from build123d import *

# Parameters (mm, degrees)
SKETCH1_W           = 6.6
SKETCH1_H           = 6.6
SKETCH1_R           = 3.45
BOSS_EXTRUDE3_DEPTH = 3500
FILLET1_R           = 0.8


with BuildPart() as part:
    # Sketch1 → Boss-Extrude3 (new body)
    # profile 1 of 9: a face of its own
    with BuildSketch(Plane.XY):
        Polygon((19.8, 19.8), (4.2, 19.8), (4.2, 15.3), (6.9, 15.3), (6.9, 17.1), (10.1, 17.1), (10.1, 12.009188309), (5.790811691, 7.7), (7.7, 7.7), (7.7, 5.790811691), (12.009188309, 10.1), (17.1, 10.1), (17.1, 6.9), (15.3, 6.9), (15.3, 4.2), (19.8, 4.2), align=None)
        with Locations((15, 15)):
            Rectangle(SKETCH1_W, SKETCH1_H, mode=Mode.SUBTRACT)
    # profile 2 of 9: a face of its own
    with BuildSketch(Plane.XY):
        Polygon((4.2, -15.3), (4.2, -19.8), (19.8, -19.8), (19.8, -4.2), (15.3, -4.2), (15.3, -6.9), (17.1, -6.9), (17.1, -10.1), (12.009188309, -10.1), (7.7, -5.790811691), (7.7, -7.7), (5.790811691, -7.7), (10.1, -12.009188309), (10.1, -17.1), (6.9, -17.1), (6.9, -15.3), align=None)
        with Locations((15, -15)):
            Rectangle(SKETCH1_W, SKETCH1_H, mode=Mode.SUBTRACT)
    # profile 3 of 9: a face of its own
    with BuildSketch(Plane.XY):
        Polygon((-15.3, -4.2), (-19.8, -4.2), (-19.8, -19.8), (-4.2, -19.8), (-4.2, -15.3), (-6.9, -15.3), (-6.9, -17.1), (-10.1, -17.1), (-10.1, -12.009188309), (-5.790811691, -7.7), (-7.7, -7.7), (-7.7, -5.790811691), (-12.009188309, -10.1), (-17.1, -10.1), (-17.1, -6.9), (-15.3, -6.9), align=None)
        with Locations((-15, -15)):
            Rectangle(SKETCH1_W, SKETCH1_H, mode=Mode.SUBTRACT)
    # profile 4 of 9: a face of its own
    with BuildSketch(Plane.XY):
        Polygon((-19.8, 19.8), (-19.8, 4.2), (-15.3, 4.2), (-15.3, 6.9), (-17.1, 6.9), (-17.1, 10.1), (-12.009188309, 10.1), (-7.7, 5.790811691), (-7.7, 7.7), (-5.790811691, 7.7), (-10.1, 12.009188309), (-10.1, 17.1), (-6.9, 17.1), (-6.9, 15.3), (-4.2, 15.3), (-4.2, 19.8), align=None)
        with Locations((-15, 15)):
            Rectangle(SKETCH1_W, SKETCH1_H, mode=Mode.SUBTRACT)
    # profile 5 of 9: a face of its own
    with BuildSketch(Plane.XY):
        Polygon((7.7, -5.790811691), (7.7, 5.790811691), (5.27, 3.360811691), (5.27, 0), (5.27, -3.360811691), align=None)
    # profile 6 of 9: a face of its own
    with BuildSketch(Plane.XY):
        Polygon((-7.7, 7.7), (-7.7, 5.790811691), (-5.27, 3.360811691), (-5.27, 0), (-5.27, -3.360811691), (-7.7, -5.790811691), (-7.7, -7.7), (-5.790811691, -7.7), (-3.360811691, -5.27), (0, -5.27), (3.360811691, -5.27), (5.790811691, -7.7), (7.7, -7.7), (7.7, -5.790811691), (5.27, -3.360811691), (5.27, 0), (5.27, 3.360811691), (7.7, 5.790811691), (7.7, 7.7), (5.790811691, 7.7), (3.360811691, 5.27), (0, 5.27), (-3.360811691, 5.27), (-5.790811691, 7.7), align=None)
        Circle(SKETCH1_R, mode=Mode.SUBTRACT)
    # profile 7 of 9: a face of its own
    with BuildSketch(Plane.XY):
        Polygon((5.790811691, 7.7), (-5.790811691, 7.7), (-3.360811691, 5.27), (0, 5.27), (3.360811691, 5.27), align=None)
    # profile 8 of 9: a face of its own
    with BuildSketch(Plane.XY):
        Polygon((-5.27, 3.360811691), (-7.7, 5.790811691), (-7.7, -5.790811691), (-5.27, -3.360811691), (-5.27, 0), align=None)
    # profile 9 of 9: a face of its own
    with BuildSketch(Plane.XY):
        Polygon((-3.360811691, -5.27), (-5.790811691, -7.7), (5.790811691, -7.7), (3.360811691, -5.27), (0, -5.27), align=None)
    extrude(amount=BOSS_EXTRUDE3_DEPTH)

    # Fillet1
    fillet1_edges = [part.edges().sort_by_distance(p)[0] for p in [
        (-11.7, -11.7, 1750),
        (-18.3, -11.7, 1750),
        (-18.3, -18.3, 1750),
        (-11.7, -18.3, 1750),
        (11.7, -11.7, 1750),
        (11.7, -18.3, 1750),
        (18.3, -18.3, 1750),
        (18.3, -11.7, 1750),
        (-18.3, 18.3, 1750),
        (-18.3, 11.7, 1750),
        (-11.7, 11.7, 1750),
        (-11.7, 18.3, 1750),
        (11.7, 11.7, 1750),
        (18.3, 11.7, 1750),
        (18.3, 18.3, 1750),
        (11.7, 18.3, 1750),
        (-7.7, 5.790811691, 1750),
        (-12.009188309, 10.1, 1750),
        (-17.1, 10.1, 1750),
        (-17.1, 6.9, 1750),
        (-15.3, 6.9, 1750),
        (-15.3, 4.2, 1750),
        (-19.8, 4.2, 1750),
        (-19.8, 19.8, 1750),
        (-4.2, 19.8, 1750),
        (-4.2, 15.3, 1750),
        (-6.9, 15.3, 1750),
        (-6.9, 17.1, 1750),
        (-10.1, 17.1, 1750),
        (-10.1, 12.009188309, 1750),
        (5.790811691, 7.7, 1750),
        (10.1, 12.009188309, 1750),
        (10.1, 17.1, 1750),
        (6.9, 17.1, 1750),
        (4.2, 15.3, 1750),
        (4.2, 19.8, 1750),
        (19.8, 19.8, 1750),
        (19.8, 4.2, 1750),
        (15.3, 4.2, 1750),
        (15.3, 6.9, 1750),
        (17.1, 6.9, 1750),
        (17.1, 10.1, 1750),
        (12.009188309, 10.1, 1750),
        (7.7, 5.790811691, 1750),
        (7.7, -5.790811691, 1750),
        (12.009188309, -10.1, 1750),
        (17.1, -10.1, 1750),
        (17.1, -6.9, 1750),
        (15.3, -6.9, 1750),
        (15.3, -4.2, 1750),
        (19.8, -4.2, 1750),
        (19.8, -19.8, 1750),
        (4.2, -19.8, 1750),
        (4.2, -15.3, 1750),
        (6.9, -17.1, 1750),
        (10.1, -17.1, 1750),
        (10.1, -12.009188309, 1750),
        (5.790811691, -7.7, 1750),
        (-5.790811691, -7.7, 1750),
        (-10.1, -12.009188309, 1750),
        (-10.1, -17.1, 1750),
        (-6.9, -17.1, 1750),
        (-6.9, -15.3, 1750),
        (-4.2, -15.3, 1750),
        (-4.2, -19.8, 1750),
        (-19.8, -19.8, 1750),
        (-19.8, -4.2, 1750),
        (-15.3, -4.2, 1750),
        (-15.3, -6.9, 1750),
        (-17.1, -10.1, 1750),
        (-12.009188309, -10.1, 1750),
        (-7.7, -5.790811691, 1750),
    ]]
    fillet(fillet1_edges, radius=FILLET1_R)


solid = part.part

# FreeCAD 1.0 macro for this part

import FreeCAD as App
import Part
import Sketcher
from FreeCAD import Vector
Q = App.Units.Quantity


def edges_at(feature, points):
    """Names of the edges that pass closest to the given points."""
    edges = feature.Shape.Edges
    near = lambda p: min(range(len(edges)), key=lambda i: edges[i].distToShape(Part.Vertex(*p))[0])
    return sorted({f"Edge{near(p) + 1}" for p in points})


def add_polygon(sketch, points):
    """Adds a closed chain of lines whose ends are joined by coincident constraints."""
    first, n = sketch.GeometryCount, len(points)
    for a, b in zip(points, points[1:] + points[:1]):
        sketch.addGeometry(Part.LineSegment(App.Vector(*a, 0), App.Vector(*b, 0)), False)
    for i in range(n):
        sketch.addConstraint(Sketcher.Constraint("Coincident", first + i, 2, first + (i + 1) % n, 1))

doc = App.newDocument("Part")
body = doc.addObject("PartDesign::Body", "Body")

sketch1 = doc.addObject("Sketcher::SketchObject", "Sketch")
body.addObject(sketch1)
sketch1.AttachmentSupport = (doc.XY_Plane, [""])
sketch1.MapMode = "FlatFace"
add_polygon(sketch1, [(19.8, 19.8), (4.2, 19.8), (4.2, 15.3), (6.9, 15.3), (6.9, 17.1), (10.1, 17.1), (10.1, 12.009188), (5.790812, 7.7), (-5.790812, 7.7), (-10.1, 12.009188), (-10.1, 17.1), (-6.9, 17.1), (-6.9, 15.3), (-4.2, 15.3), (-4.2, 19.8), (-19.8, 19.8), (-19.8, 4.2), (-15.3, 4.2), (-15.3, 6.9), (-17.1, 6.9), (-17.1, 10.1), (-12.009188, 10.1), (-7.7, 5.790812), (-7.7, -5.790812), (-12.009188, -10.1), (-17.1, -10.1), (-17.1, -6.9), (-15.3, -6.9), (-15.3, -4.2), (-19.8, -4.2), (-19.8, -19.8), (-4.2, -19.8), (-4.2, -15.3), (-6.9, -15.3), (-6.9, -17.1), (-10.1, -17.1), (-10.1, -12.009188), (-5.790812, -7.7), (5.790812, -7.7), (10.1, -12.009188), (10.1, -17.1), (6.9, -17.1), (6.9, -15.3), (4.2, -15.3), (4.2, -19.8), (19.8, -19.8), (19.8, -4.2), (15.3, -4.2), (15.3, -6.9), (17.1, -6.9), (17.1, -10.1), (12.009188, -10.1), (7.7, -5.790812), (7.7, 5.790812), (12.009188, 10.1), (17.1, 10.1), (17.1, 6.9), (15.3, 6.9), (15.3, 4.2), (19.8, 4.2)])
add_polygon(sketch1, [(18.3, 11.7), (11.7, 11.7), (11.7, 18.3), (18.3, 18.3)])
sketch1.addGeometry(Part.Circle(Vector(0, 0, 0), Vector(0, 0, 1), 3.45), False)
add_polygon(sketch1, [(-18.3, 11.7), (-18.3, 18.3), (-11.7, 18.3), (-11.7, 11.7)])
add_polygon(sketch1, [(-18.3, -18.3), (-18.3, -11.7), (-11.7, -11.7), (-11.7, -18.3)])
add_polygon(sketch1, [(11.7, -11.7), (18.3, -11.7), (18.3, -18.3), (11.7, -18.3)])
sketch1.addConstraint([
    Sketcher.Constraint("Horizontal", 0),
    Sketcher.Constraint("Vertical", 1),
    Sketcher.Constraint("Horizontal", 2),
    Sketcher.Constraint("Vertical", 3),
    Sketcher.Constraint("Horizontal", 4),
    Sketcher.Constraint("Vertical", 5),
    Sketcher.Constraint("Horizontal", 7),
    Sketcher.Constraint("Vertical", 9),
    Sketcher.Constraint("Horizontal", 10),
    Sketcher.Constraint("Vertical", 11),
    Sketcher.Constraint("Horizontal", 12),
    Sketcher.Constraint("Vertical", 13),
    Sketcher.Constraint("Horizontal", 14),
    Sketcher.Constraint("Vertical", 15),
    Sketcher.Constraint("Horizontal", 16),
    Sketcher.Constraint("Vertical", 17),
    Sketcher.Constraint("Horizontal", 18),
    Sketcher.Constraint("Vertical", 19),
    Sketcher.Constraint("Horizontal", 20),
    Sketcher.Constraint("Vertical", 22),
    Sketcher.Constraint("Horizontal", 24),
    Sketcher.Constraint("Vertical", 25),
    Sketcher.Constraint("Horizontal", 26),
    Sketcher.Constraint("Vertical", 27),
    Sketcher.Constraint("Horizontal", 28),
    Sketcher.Constraint("Vertical", 29),
    Sketcher.Constraint("Horizontal", 30),
    Sketcher.Constraint("Vertical", 31),
    Sketcher.Constraint("Horizontal", 32),
    Sketcher.Constraint("Vertical", 33),
    Sketcher.Constraint("Horizontal", 34),
    Sketcher.Constraint("Vertical", 35),
    Sketcher.Constraint("Horizontal", 37),
    Sketcher.Constraint("Vertical", 39),
    Sketcher.Constraint("Horizontal", 40),
    Sketcher.Constraint("Vertical", 41),
    Sketcher.Constraint("Horizontal", 42),
    Sketcher.Constraint("Vertical", 43),
    Sketcher.Constraint("Horizontal", 44),
    Sketcher.Constraint("Vertical", 45),
    Sketcher.Constraint("Horizontal", 46),
    Sketcher.Constraint("Vertical", 47),
    Sketcher.Constraint("Horizontal", 48),
    Sketcher.Constraint("Vertical", 49),
    Sketcher.Constraint("Horizontal", 50),
    Sketcher.Constraint("Vertical", 52),
    Sketcher.Constraint("Horizontal", 54),
    Sketcher.Constraint("Vertical", 55),
    Sketcher.Constraint("Horizontal", 56),
    Sketcher.Constraint("Vertical", 57),
    Sketcher.Constraint("Horizontal", 58),
    Sketcher.Constraint("Vertical", 59),
    Sketcher.Constraint("Horizontal", 60),
    Sketcher.Constraint("Vertical", 61),
    Sketcher.Constraint("Horizontal", 62),
    Sketcher.Constraint("Vertical", 63),
    Sketcher.Constraint("Vertical", 65),
    Sketcher.Constraint("Horizontal", 66),
    Sketcher.Constraint("Vertical", 67),
    Sketcher.Constraint("Horizontal", 68),
    Sketcher.Constraint("Vertical", 69),
    Sketcher.Constraint("Horizontal", 70),
    Sketcher.Constraint("Vertical", 71),
    Sketcher.Constraint("Horizontal", 72),
    Sketcher.Constraint("Horizontal", 73),
    Sketcher.Constraint("Vertical", 74),
    Sketcher.Constraint("Horizontal", 75),
    Sketcher.Constraint("Vertical", 76),
    Sketcher.Constraint("Coincident", 64, 3, -1, 1),
    Sketcher.Constraint("Symmetric", 0, 2, 30, 2, -1, 1),
    Sketcher.Constraint("Symmetric", 2, 2, 32, 2, -1, 1),
    Sketcher.Constraint("Symmetric", 4, 2, 34, 2, -1, 1),
    Sketcher.Constraint("Symmetric", 6, 2, 36, 2, -1, 1),
    Sketcher.Constraint("Symmetric", 8, 2, 38, 2, -1, 1),
    Sketcher.Constraint("Symmetric", 10, 2, 40, 2, -1, 1),
    Sketcher.Constraint("Symmetric", 12, 2, 42, 2, -1, 1),
    Sketcher.Constraint("Symmetric", 14, 2, 44, 2, -1, 1),
    Sketcher.Constraint("Symmetric", 16, 2, 46, 2, -1, 1),
    Sketcher.Constraint("Symmetric", 18, 2, 48, 2, -1, 1),
    Sketcher.Constraint("Symmetric", 20, 2, 50, 2, -1, 1),
    Sketcher.Constraint("Symmetric", 21, 2, 51, 2, -1, 1),
    Sketcher.Constraint("Symmetric", 23, 2, 53, 2, -1, 1),
    Sketcher.Constraint("Symmetric", 25, 2, 55, 2, -1, 1),
    Sketcher.Constraint("Symmetric", 27, 2, 57, 2, -1, 1),
    Sketcher.Constraint("Symmetric", 63, 2, 69, 2, -1, 1),
    Sketcher.Constraint("Symmetric", 61, 2, 71, 2, -1, 1),
    Sketcher.Constraint("Symmetric", 68, 2, 73, 2, -1, 1),
    Sketcher.Constraint("Symmetric", 66, 2, 75, 2, -1, 1),
    Sketcher.Constraint("Symmetric", 5, 2, 8, 2, -2),
    Sketcher.Constraint("Symmetric", 3, 2, 10, 2, -2),
    Sketcher.Constraint("Symmetric", 1, 2, 12, 2, -2),
    Sketcher.Constraint("Symmetric", 29, 2, 44, 2, -2),
    Sketcher.Constraint("Symmetric", 27, 2, 46, 2, -2),
    Sketcher.Constraint("Symmetric", 25, 2, 48, 2, -2),
    Sketcher.Constraint("Symmetric", 23, 2, 50, 2, -2),
    Sketcher.Constraint("Symmetric", 62, 2, 65, 2, -2),
    Sketcher.Constraint("Symmetric", 60, 2, 67, 2, -2),
    Sketcher.Constraint("Perpendicular", 6, 8),
    Sketcher.Constraint("Parallel", 8, 21),
    Sketcher.Constraint("Perpendicular", 21, 23),
    Sketcher.Constraint("Parallel", 23, 36),
    Sketcher.Constraint("Perpendicular", 36, 38),
    Sketcher.Constraint("Perpendicular", 51, 53),
    Sketcher.Constraint("Horizontal", 22, 2, 51, 2),
    Sketcher.Constraint("Vertical", 45, 2, 58, 2),
    Sketcher.Constraint("Equal", 58, 1),
    Sketcher.Constraint("Equal", 56, 3),
    Sketcher.Constraint("Equal", 54, 5),
    Sketcher.Constraint("Equal", 44, 15),
    Sketcher.Constraint("Equal", 42, 17),
    Sketcher.Constraint("Equal", 40, 19),
    Sketcher.Constraint("Equal", 37, 22),
    Sketcher.Constraint("Equal", 75, 61),
    Sketcher.Constraint("Equal", 8, 21),
    Sketcher.Constraint("Diameter", 64, Q("6.9 mm")),
    Sketcher.Constraint("DistanceX", 0, 2, 0, 1, Q("15.6 mm")),
    Sketcher.Constraint("DistanceX", 2, 1, 2, 2, Q("2.7 mm")),
    Sketcher.Constraint("DistanceX", 4, 1, 4, 2, Q("3.2 mm")),
    Sketcher.Constraint("DistanceX", 16, 1, 16, 2, Q("4.5 mm")),
    Sketcher.Constraint("DistanceX", 18, 2, 18, 1, Q("1.8 mm")),
    Sketcher.Constraint("DistanceX", 60, 2, 60, 1, Q("6.6 mm")),
    Sketcher.Constraint("DistanceX", -1, 1, 0, 2, Q("4.2 mm")),
    Sketcher.Constraint("DistanceY", -1, 1, 6, 2, Q("7.7 mm")),
    Sketcher.Constraint("DistanceX", -1, 1, 60, 2, Q("11.7 mm")),
    Sketcher.Constraint("DistanceY", -1, 1, 60, 2, Q("11.7 mm")),
    Sketcher.Constraint("DistanceX", 20, 1, 20, 2, Q("5.090812 mm")),
])
pad1 = doc.addObject("PartDesign::Pad", "Pad")
body.addObject(pad1)
pad1.Profile = sketch1
pad1.Length = 3500
doc.recompute()

fillet = doc.addObject("PartDesign::Fillet", "Fillet")
body.addObject(fillet)
fillet.Base = (pad1, edges_at(pad1, [
    (-11.7, -11.7, 1750),
    (-18.3, -11.7, 1750),
    (-18.3, -18.3, 1750),
    (-11.7, -18.3, 1750),
    (11.7, -11.7, 1750),
    (11.7, -18.3, 1750),
    (18.3, -18.3, 1750),
    (18.3, -11.7, 1750),
    (-18.3, 18.3, 1750),
    (-18.3, 11.7, 1750),
    (-11.7, 11.7, 1750),
    (-11.7, 18.3, 1750),
    (11.7, 11.7, 1750),
    (18.3, 11.7, 1750),
    (18.3, 18.3, 1750),
    (11.7, 18.3, 1750),
    (-7.7, 5.791, 1750),
    (-12.009, 10.1, 1750),
    (-17.1, 10.1, 1750),
    (-17.1, 6.9, 1750),
    (-15.3, 6.9, 1750),
    (-15.3, 4.2, 1750),
    (-19.8, 4.2, 1750),
    (-19.8, 19.8, 1750),
    (-4.2, 19.8, 1750),
    (-4.2, 15.3, 1750),
    (-6.9, 15.3, 1750),
    (-6.9, 17.1, 1750),
    (-10.1, 17.1, 1750),
    (-10.1, 12.009, 1750),
    (5.791, 7.7, 1750),
    (10.1, 12.009, 1750),
    (10.1, 17.1, 1750),
    (6.9, 17.1, 1750),
    (4.2, 15.3, 1750),
    (4.2, 19.8, 1750),
    (19.8, 19.8, 1750),
    (19.8, 4.2, 1750),
    (15.3, 4.2, 1750),
    (15.3, 6.9, 1750),
    (17.1, 6.9, 1750),
    (17.1, 10.1, 1750),
    (12.009, 10.1, 1750),
    (7.7, 5.791, 1750),
    (7.7, -5.791, 1750),
    (12.009, -10.1, 1750),
    (17.1, -10.1, 1750),
    (17.1, -6.9, 1750),
    (15.3, -6.9, 1750),
    (15.3, -4.2, 1750),
    (19.8, -4.2, 1750),
    (19.8, -19.8, 1750),
    (4.2, -19.8, 1750),
    (4.2, -15.3, 1750),
    (6.9, -17.1, 1750),
    (10.1, -17.1, 1750),
    (10.1, -12.009, 1750),
    (5.791, -7.7, 1750),
    (-5.791, -7.7, 1750),
    (-10.1, -12.009, 1750),
    (-10.1, -17.1, 1750),
    (-6.9, -17.1, 1750),
    (-6.9, -15.3, 1750),
    (-4.2, -15.3, 1750),
    (-4.2, -19.8, 1750),
    (-19.8, -19.8, 1750),
    (-19.8, -4.2, 1750),
    (-15.3, -4.2, 1750),
    (-15.3, -6.9, 1750),
    (-17.1, -10.1, 1750),
    (-12.009, -10.1, 1750),
    (-7.7, -5.791, 1750),
]))
fillet.Radius = 0.8

doc.recompute()
